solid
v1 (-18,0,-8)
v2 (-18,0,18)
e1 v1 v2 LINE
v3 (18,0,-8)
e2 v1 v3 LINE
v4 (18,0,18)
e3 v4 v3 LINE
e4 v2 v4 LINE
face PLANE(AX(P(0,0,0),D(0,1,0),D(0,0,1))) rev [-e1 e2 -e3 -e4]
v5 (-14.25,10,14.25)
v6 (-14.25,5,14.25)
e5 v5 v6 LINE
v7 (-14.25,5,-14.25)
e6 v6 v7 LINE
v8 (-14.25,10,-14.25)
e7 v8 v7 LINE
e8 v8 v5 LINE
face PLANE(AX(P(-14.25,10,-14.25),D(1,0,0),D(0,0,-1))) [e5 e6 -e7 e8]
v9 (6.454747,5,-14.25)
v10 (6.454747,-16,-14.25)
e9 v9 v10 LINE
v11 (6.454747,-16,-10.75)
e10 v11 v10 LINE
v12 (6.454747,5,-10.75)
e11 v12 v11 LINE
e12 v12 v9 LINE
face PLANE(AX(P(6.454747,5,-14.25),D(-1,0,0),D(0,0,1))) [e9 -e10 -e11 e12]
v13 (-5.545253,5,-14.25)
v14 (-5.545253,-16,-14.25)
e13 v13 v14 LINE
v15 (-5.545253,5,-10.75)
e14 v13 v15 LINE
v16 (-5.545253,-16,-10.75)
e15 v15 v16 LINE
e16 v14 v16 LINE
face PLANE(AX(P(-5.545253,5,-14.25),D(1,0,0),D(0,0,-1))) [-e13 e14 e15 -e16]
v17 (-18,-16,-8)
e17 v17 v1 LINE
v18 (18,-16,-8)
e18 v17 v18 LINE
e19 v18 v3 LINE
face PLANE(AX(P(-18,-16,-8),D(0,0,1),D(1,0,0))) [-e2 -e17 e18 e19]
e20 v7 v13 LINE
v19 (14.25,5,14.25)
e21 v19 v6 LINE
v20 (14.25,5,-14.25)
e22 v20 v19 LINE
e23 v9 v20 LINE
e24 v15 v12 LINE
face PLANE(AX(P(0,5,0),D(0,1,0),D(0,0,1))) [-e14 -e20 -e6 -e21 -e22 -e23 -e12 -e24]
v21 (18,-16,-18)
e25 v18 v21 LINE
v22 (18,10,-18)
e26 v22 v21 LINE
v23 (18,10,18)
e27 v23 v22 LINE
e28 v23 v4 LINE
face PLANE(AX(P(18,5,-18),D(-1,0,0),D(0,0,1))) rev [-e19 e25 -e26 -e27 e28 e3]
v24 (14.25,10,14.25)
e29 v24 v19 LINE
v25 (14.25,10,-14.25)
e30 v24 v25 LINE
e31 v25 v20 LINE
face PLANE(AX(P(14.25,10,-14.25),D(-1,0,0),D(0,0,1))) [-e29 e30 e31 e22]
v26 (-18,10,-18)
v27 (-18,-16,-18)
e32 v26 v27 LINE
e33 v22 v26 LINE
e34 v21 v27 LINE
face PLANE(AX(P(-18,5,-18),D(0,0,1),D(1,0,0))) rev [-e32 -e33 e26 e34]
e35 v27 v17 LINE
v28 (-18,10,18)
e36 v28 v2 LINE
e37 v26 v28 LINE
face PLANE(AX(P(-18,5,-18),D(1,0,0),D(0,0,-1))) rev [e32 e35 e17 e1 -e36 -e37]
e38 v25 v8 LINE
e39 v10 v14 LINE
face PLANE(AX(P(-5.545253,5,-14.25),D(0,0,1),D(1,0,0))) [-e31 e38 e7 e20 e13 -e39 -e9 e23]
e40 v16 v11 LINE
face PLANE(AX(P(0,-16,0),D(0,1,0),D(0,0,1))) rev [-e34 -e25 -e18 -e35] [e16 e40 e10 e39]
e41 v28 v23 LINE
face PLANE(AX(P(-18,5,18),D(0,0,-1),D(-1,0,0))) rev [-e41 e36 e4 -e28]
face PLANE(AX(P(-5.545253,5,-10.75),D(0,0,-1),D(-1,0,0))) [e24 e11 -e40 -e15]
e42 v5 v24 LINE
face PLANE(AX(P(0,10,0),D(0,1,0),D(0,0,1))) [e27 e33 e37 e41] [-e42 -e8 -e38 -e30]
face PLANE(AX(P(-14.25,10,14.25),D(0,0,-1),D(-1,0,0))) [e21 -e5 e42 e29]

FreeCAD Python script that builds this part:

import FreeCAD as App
import Part
import Sketcher
from FreeCAD import Vector


def add_polygon(sketch, points):
    """Adds a closed chain of lines whose ends are joined by coincident constraints."""
    first, n = sketch.GeometryCount, len(points)
    for a, b in zip(points, points[1:] + points[:1]):
        sketch.addGeometry(Part.LineSegment(App.Vector(*a, 0), App.Vector(*b, 0)), False)
    for i in range(n):
        sketch.addConstraint(Sketcher.Constraint("Coincident", first + i, 2, first + (i + 1) % n, 1))

doc = App.newDocument("Part")
body = doc.addObject("PartDesign::Body", "Body")

sketch1 = body.newObject("Sketcher::SketchObject", "Sketch")
sketch1.AttachmentSupport = (doc.getObject("XZ_Plane"), [""])
sketch1.MapMode = "FlatFace"
add_polygon(sketch1, [(-18, -18), (-18, 18), (18, 18), (18, -18)])
add_polygon(sketch1, [(6.454747, -10.75), (-5.545253, -10.75), (-5.545253, -14.25), (6.454747, -14.25)])
sketch1.addConstraint(Sketcher.Constraint("Vertical", 0))
sketch1.addConstraint(Sketcher.Constraint("Horizontal", 1))
sketch1.addConstraint(Sketcher.Constraint("Vertical", 2))
sketch1.addConstraint(Sketcher.Constraint("Horizontal", 3))
sketch1.addConstraint(Sketcher.Constraint("Horizontal", 4))
sketch1.addConstraint(Sketcher.Constraint("Vertical", 5))
sketch1.addConstraint(Sketcher.Constraint("Horizontal", 6))
sketch1.addConstraint(Sketcher.Constraint("Vertical", 7))
sketch1.addConstraint(Sketcher.Constraint("Symmetric", 0, 2, 2, 2, -1, 1))
sketch1.addConstraint(Sketcher.Constraint("Equal", 3, 0))
sketch1.addConstraint(Sketcher.Constraint("DistanceX", 1, 1, 1, 2, 36.0))
sketch1.addConstraint(Sketcher.Constraint("DistanceX", 4, 2, 4, 1, 12.0))
sketch1.addConstraint(Sketcher.Constraint("DistanceY", 5, 2, 5, 1, 3.5))
sketch1.addConstraint(Sketcher.Constraint("DistanceY", 4, 2, -1, 1, 10.75))
sketch1.addConstraint(Sketcher.Constraint("DistanceX", 4, 2, -1, 1, 5.545253))
pad1 = body.newObject("PartDesign::Pad", "Pad")
pad1.Profile = sketch1
pad1.Length = 5
pad1.Reversed = True

sketch2 = body.newObject("Sketcher::SketchObject", "Sketch001")
sketch2.AttachmentSupport = (doc.getObject("XZ_Plane"), [""])
sketch2.MapMode = "FlatFace"
add_polygon(sketch2, [(-18, -18), (-18, 18), (18, 18), (18, -18)])
add_polygon(sketch2, [(14.25, 14.25), (-14.25, 14.25), (-14.25, -14.25), (14.25, -14.25)])
sketch2.addConstraint(Sketcher.Constraint("Vertical", 0))
sketch2.addConstraint(Sketcher.Constraint("Horizontal", 1))
sketch2.addConstraint(Sketcher.Constraint("Vertical", 2))
sketch2.addConstraint(Sketcher.Constraint("Horizontal", 3))
sketch2.addConstraint(Sketcher.Constraint("Horizontal", 4))
sketch2.addConstraint(Sketcher.Constraint("Vertical", 5))
sketch2.addConstraint(Sketcher.Constraint("Horizontal", 6))
sketch2.addConstraint(Sketcher.Constraint("Vertical", 7))
sketch2.addConstraint(Sketcher.Constraint("Symmetric", 0, 2, 2, 2, -1, 1))
sketch2.addConstraint(Sketcher.Constraint("Symmetric", 4, 2, 6, 2, -1, 1))
sketch2.addConstraint(Sketcher.Constraint("Equal", 3, 0))
sketch2.addConstraint(Sketcher.Constraint("Equal", 6, 5))
sketch2.addConstraint(Sketcher.Constraint("DistanceX", 1, 1, 1, 2, 36.0))
sketch2.addConstraint(Sketcher.Constraint("DistanceX", 4, 2, 4, 1, 28.5))
pad2 = body.newObject("PartDesign::Pad", "Pad001")
pad2.Profile = sketch2
pad2.Length = 10
pad2.Reversed = True

sketch3 = body.newObject("Sketcher::SketchObject", "Sketch002")
sketch3.AttachmentSupport = (doc.getObject("XZ_Plane"), [""])
sketch3.MapMode = "FlatFace"
add_polygon(sketch3, [(-18, -18), (-18, -8), (18, -8), (18, -18)])
add_polygon(sketch3, [(6.454747, -10.75), (-5.545253, -10.75), (-5.545253, -14.25), (6.454747, -14.25)])
sketch3.addConstraint(Sketcher.Constraint("Vertical", 0))
sketch3.addConstraint(Sketcher.Constraint("Horizontal", 1))
sketch3.addConstraint(Sketcher.Constraint("Vertical", 2))
sketch3.addConstraint(Sketcher.Constraint("Horizontal", 3))
sketch3.addConstraint(Sketcher.Constraint("Horizontal", 4))
sketch3.addConstraint(Sketcher.Constraint("Vertical", 5))
sketch3.addConstraint(Sketcher.Constraint("Horizontal", 6))
sketch3.addConstraint(Sketcher.Constraint("Vertical", 7))
sketch3.addConstraint(Sketcher.Constraint("DistanceX", 1, 1, 1, 2, 36.0))
sketch3.addConstraint(Sketcher.Constraint("DistanceX", 4, 2, 4, 1, 12.0))
sketch3.addConstraint(Sketcher.Constraint("DistanceY", 0, 1, 0, 2, 10.0))
sketch3.addConstraint(Sketcher.Constraint("DistanceY", 5, 2, 5, 1, 3.5))
sketch3.addConstraint(Sketcher.Constraint("DistanceX", 0, 2, -1, 1, 18.0))
sketch3.addConstraint(Sketcher.Constraint("DistanceY", 0, 2, -1, 1, 8.0))
sketch3.addConstraint(Sketcher.Constraint("DistanceY", 4, 2, -1, 1, 10.75))
sketch3.addConstraint(Sketcher.Constraint("DistanceX", 4, 2, -1, 1, 5.545253))
pad3 = body.newObject("PartDesign::Pad", "Pad002")
pad3.Profile = sketch3
pad3.Length = 16

doc.recompute()
